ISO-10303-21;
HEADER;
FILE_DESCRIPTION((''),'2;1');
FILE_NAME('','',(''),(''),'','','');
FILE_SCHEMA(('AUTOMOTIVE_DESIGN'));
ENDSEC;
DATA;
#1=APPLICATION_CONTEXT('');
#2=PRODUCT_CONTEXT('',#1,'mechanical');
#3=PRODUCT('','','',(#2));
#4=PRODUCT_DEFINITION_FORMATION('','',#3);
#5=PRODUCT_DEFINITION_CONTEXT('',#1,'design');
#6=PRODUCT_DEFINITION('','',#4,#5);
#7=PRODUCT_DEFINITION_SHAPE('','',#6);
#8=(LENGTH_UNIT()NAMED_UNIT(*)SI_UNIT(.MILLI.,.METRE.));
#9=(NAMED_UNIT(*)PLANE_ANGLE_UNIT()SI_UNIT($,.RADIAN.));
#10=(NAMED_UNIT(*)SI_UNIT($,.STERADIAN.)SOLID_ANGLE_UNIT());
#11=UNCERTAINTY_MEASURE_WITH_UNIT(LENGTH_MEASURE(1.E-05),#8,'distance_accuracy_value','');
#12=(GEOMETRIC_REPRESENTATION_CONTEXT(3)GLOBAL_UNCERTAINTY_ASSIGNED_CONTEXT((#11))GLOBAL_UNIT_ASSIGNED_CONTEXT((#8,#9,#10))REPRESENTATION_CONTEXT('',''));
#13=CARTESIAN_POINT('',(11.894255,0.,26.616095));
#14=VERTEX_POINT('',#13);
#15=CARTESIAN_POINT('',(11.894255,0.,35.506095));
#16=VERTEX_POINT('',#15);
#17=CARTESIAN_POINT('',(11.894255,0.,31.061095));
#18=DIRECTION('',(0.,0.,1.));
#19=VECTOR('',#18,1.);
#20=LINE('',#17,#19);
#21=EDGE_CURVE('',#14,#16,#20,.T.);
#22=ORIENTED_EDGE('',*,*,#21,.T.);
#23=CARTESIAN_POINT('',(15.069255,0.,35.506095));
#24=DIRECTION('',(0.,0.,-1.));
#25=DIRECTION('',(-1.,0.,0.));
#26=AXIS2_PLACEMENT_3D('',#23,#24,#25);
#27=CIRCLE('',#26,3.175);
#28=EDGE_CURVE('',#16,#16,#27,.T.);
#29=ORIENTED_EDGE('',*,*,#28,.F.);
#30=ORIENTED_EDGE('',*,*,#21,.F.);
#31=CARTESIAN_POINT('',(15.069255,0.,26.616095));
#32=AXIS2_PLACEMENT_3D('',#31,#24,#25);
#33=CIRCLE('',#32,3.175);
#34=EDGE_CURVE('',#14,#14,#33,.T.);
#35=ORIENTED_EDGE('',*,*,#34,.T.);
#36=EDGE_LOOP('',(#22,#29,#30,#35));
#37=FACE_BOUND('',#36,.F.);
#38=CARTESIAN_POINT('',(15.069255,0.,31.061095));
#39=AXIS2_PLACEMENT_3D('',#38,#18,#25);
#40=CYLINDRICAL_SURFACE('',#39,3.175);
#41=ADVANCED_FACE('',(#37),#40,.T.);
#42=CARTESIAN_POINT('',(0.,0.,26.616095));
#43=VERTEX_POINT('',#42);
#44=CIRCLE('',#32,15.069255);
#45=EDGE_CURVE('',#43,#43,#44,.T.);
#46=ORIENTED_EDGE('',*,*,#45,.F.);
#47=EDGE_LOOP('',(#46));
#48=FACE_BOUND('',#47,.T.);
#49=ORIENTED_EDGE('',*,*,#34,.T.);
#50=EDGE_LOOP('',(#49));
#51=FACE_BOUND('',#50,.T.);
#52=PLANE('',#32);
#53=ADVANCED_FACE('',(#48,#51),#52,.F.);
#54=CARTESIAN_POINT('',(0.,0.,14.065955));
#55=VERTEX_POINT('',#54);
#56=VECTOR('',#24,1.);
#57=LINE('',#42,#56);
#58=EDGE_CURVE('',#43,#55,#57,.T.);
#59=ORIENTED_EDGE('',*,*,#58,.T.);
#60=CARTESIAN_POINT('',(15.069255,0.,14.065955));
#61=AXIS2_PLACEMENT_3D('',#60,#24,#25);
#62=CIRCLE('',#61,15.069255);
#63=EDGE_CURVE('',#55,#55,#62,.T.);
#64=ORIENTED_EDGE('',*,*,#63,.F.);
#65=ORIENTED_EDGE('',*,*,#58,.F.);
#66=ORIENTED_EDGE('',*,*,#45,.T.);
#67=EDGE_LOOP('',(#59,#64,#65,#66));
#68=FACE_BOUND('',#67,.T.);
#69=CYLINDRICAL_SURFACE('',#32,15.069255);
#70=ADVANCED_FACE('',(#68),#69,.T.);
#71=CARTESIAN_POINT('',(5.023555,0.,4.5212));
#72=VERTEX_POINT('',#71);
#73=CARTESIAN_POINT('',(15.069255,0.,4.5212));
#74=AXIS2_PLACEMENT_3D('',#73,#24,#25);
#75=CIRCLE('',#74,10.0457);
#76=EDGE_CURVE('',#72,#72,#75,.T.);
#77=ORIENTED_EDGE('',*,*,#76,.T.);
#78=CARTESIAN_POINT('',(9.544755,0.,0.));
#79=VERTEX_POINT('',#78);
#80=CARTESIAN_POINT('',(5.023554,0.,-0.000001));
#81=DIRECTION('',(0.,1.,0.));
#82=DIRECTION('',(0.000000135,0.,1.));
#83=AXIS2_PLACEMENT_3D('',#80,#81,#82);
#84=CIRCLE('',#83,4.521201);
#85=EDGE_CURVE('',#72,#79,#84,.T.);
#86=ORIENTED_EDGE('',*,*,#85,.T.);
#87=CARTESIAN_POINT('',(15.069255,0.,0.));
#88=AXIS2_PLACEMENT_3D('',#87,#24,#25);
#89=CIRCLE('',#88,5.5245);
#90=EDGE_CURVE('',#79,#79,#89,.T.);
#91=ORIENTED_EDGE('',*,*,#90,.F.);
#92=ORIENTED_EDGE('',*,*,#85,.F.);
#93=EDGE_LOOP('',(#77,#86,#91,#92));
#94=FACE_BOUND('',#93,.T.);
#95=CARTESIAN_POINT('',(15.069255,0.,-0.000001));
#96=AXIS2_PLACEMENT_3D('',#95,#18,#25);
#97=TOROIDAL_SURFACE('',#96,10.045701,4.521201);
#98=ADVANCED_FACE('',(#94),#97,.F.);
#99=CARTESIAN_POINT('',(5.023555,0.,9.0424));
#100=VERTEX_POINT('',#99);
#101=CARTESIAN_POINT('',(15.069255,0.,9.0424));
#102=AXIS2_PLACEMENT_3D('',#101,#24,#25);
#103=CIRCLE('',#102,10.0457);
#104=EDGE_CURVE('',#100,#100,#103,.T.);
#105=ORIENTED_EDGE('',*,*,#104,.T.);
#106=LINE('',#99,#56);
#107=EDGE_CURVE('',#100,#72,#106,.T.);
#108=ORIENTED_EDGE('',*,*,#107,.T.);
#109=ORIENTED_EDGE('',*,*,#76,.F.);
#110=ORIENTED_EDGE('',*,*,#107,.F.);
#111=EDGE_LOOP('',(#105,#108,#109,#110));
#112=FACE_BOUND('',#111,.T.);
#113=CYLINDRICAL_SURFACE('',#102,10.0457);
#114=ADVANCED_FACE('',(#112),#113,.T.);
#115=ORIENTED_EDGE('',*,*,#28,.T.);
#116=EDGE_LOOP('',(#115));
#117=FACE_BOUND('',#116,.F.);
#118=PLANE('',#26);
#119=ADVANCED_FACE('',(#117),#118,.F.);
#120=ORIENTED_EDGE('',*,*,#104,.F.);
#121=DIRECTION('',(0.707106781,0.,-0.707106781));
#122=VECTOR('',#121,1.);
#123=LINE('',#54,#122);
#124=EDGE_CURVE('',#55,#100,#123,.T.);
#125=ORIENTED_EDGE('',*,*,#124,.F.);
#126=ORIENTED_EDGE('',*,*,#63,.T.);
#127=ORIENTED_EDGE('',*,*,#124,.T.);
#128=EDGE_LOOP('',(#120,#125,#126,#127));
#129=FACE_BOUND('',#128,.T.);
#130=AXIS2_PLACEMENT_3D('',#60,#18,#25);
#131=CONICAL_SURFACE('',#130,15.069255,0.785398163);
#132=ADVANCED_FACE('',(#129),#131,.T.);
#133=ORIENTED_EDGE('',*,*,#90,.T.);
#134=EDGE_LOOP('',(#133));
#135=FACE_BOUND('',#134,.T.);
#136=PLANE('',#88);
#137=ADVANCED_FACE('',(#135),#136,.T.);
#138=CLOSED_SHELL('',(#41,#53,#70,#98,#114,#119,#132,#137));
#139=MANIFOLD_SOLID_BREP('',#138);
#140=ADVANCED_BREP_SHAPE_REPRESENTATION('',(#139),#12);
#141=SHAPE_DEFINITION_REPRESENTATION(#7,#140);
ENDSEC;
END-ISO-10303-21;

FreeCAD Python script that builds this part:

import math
import FreeCAD as App
import Part
import Sketcher
Q = App.Units.Quantity

doc = App.newDocument("Part")
body = doc.addObject("PartDesign::Body", "Body")

sketch1 = doc.addObject("Sketcher::SketchObject", "Sketch")
body.addObject(sketch1)
sketch1.AttachmentSupport = (doc.XZ_Plane, [""])
sketch1.MapMode = "FlatFace"
sketch1.addGeometry([
    Part.LineSegment(App.Vector(0, 26.616095, 0), App.Vector(0, 14.065955, 0)),
    Part.LineSegment(App.Vector(0, 14.065955, 0), App.Vector(5.023555, 9.0424, 0)),
    Part.LineSegment(App.Vector(5.023555, 9.0424, 0), App.Vector(5.023555, 4.5212, 0)),
    Part.ArcOfCircle(Part.Circle(App.Vector(5.023554, -0.000001, 0), App.Vector(0, 0, 1), 4.521201), math.radians(0.000008), math.radians(89.999992)),
    Part.LineSegment(App.Vector(9.544755, 0, 0), App.Vector(15.069255, 0, 0)),
    Part.LineSegment(App.Vector(15.069255, 0, 0), App.Vector(15.069255, 35.506095, 0)),
    Part.LineSegment(App.Vector(15.069255, 35.506095, 0), App.Vector(11.894255, 35.506095, 0)),
    Part.LineSegment(App.Vector(11.894255, 35.506095, 0), App.Vector(11.894255, 26.616095, 0)),
    Part.LineSegment(App.Vector(11.894255, 26.616095, 0), App.Vector(0, 26.616095, 0)),
], False)
sketch1.addGeometry(Part.LineSegment(App.Vector(15.069255, 35.506095, 0), App.Vector(15.069255, -0.000001, 0)), True)
sketch1.addConstraint([
    Sketcher.Constraint("Coincident", 0, 2, 1, 1),
    Sketcher.Constraint("Coincident", 1, 2, 2, 1),
    Sketcher.Constraint("Coincident", 2, 2, 3, 2),
    Sketcher.Constraint("Coincident", 3, 1, 4, 1),
    Sketcher.Constraint("Coincident", 4, 2, 5, 1),
    Sketcher.Constraint("Coincident", 5, 2, 6, 1),
    Sketcher.Constraint("Coincident", 6, 2, 7, 1),
    Sketcher.Constraint("Coincident", 7, 2, 8, 1),
    Sketcher.Constraint("Coincident", 8, 2, 0, 1),
    Sketcher.Constraint("Vertical", 0),
    Sketcher.Constraint("Vertical", 2),
    Sketcher.Constraint("Horizontal", 4),
    Sketcher.Constraint("Vertical", 5),
    Sketcher.Constraint("Horizontal", 6),
    Sketcher.Constraint("Vertical", 7),
    Sketcher.Constraint("Horizontal", 8),
    Sketcher.Constraint("Vertical", 9),
    Sketcher.Constraint("Coincident", 9, 1, 5, 2),
    Sketcher.Constraint("PointOnObject", 3, 3, -1),
    Sketcher.Constraint("PointOnObject", 0, 2, -2),
    Sketcher.Constraint("PointOnObject", 3, 1, -1),
    Sketcher.Constraint("PointOnObject", 9, 2, -1),
    Sketcher.Constraint("Vertical", 3, 3, 1, 2),
    Sketcher.Constraint("Angle", 1, Q("-45 deg")),
    Sketcher.Constraint("Radius", 3, Q("0.178 in")),
    Sketcher.Constraint("DistanceY", 7, 2, 7, 1, Q("0.35 in")),
    Sketcher.Constraint("DistanceX", 6, 2, 6, 1, Q("0.125 in")),
    Sketcher.Constraint("DistanceY", 2, 2, 2, 1, Q("0.178 in")),
    Sketcher.Constraint("DistanceX", 4, 1, 4, 2, Q("0.2175 in")),
    Sketcher.Constraint("DistanceY", 0, 2, 0, 1, Q("0.4941 in")),
    Sketcher.Constraint("Distance", 1, Q("0.2797 in")),
])
revolution = doc.addObject("PartDesign::Revolution", "Revolution")
body.addObject(revolution)
revolution.Profile = sketch1
revolution.ReferenceAxis = (sketch1, ["Axis0"])
revolution.Angle = 360

doc.recompute()
